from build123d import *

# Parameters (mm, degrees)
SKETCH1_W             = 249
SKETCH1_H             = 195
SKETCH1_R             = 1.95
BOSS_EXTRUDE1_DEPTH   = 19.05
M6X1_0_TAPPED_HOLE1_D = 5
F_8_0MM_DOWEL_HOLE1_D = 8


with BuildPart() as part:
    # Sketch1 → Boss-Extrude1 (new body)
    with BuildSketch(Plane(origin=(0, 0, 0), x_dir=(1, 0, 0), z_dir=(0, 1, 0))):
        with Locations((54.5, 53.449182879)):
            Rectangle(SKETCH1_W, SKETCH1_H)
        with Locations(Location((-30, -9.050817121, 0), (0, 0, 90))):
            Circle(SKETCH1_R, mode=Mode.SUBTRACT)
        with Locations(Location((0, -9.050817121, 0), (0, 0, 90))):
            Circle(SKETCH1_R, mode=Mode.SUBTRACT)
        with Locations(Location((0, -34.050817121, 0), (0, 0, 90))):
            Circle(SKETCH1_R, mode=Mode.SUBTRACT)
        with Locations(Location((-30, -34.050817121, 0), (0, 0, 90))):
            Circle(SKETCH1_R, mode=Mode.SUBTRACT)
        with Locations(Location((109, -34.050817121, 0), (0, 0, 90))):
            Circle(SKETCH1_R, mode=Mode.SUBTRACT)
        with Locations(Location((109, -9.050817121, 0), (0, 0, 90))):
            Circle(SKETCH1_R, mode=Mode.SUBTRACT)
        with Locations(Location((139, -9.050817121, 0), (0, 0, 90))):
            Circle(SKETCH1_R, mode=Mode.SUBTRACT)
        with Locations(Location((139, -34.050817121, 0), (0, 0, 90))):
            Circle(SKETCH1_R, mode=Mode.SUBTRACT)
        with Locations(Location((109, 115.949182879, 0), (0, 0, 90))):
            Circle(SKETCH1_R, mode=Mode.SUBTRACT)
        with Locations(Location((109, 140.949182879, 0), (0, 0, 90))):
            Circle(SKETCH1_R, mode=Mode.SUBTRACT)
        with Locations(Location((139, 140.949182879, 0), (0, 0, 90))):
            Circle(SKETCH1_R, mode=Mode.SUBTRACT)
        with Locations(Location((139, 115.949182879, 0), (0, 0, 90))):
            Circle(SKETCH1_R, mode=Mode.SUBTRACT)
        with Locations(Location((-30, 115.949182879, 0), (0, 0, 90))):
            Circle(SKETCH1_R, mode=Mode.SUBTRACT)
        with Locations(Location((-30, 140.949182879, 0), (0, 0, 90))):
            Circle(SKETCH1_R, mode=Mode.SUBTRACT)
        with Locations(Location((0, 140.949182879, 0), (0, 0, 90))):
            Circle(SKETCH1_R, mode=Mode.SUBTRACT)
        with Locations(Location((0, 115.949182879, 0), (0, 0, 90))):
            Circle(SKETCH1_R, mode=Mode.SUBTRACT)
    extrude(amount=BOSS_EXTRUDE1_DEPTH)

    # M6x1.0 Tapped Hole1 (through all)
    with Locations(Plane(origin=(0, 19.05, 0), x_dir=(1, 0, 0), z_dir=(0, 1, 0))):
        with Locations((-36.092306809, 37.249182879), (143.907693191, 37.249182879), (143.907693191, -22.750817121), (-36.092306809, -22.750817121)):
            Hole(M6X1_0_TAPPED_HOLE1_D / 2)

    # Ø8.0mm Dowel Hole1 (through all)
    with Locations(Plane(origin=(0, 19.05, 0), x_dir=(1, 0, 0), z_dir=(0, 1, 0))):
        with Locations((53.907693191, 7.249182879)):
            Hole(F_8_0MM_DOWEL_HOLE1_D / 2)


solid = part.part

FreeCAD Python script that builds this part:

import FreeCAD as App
import Part
import Sketcher

doc = App.newDocument("Part")
body = doc.addObject("PartDesign::Body", "Body")

# Sketch on XZ plane
sketch1 = doc.addObject("Sketcher::SketchObject", "Sketch")
body.addObject(sketch1)
sketch1.AttachmentSupport = (doc.XZ_Plane, [""])
sketch1.MapMode = "FlatFace"
sketch1.addGeometry(Part.LineSegment(App.Vector(-70, -150.949183, 0), App.Vector(-70, 44.050817, 0)), False)
sketch1.addGeometry(Part.LineSegment(App.Vector(-70, 44.050817, 0), App.Vector(179, 44.050817, 0)), False)
sketch1.addGeometry(Part.LineSegment(App.Vector(179, 44.050817, 0), App.Vector(179, -150.949183, 0)), False)
sketch1.addGeometry(Part.LineSegment(App.Vector(179, -150.949183, 0), App.Vector(-70, -150.949183, 0)), False)
sketch1.addGeometry(Part.Circle(App.Vector(-30, 34.050817, 0), App.Vector(0, 0, 1), 1.95), False)
sketch1.addGeometry(Part.Circle(App.Vector(0, 34.050817, 0), App.Vector(0, 0, 1), 1.95), False)
sketch1.addGeometry(Part.Circle(App.Vector(-30, 9.050817, 0), App.Vector(0, 0, 1), 1.95), False)
sketch1.addGeometry(Part.Circle(App.Vector(0, 9.050817, 0), App.Vector(0, 0, 1), 1.95), False)
sketch1.addGeometry(Part.Circle(App.Vector(109, 34.050817, 0), App.Vector(0, 0, 1), 1.95), False)
sketch1.addGeometry(Part.Circle(App.Vector(139, 34.050817, 0), App.Vector(0, 0, 1), 1.95), False)
sketch1.addGeometry(Part.Circle(App.Vector(109, 9.050817, 0), App.Vector(0, 0, 1), 1.95), False)
sketch1.addGeometry(Part.Circle(App.Vector(139, 9.050817, 0), App.Vector(0, 0, 1), 1.95), False)
sketch1.addGeometry(Part.Circle(App.Vector(-30, -115.949183, 0), App.Vector(0, 0, 1), 1.95), False)
sketch1.addGeometry(Part.Circle(App.Vector(0, -115.949183, 0), App.Vector(0, 0, 1), 1.95), False)
sketch1.addGeometry(Part.Circle(App.Vector(-30, -140.949183, 0), App.Vector(0, 0, 1), 1.95), False)
sketch1.addGeometry(Part.Circle(App.Vector(0, -140.949183, 0), App.Vector(0, 0, 1), 1.95), False)
sketch1.addGeometry(Part.Circle(App.Vector(109, -115.949183, 0), App.Vector(0, 0, 1), 1.95), False)
sketch1.addGeometry(Part.Circle(App.Vector(139, -115.949183, 0), App.Vector(0, 0, 1), 1.95), False)
sketch1.addGeometry(Part.Circle(App.Vector(109, -140.949183, 0), App.Vector(0, 0, 1), 1.95), False)
sketch1.addGeometry(Part.Circle(App.Vector(139, -140.949183, 0), App.Vector(0, 0, 1), 1.95), False)
sketch1.addConstraint(Sketcher.Constraint("Coincident", 0, 2, 1, 1))
sketch1.addConstraint(Sketcher.Constraint("Coincident", 1, 2, 2, 1))
sketch1.addConstraint(Sketcher.Constraint("Coincident", 2, 2, 3, 1))
sketch1.addConstraint(Sketcher.Constraint("Coincident", 3, 2, 0, 1))
sketch1.addConstraint(Sketcher.Constraint("Vertical", 0))
sketch1.addConstraint(Sketcher.Constraint("Horizontal", 1))
sketch1.addConstraint(Sketcher.Constraint("Vertical", 2))
sketch1.addConstraint(Sketcher.Constraint("Horizontal", 3))
sketch1.addConstraint(Sketcher.Constraint("Equal", 4, 5))
sketch1.addConstraint(Sketcher.Constraint("Equal", 5, 6))
sketch1.addConstraint(Sketcher.Constraint("Equal", 6, 7))
sketch1.addConstraint(Sketcher.Constraint("Equal", 7, 8))
sketch1.addConstraint(Sketcher.Constraint("Equal", 8, 9))
sketch1.addConstraint(Sketcher.Constraint("Equal", 9, 10))
sketch1.addConstraint(Sketcher.Constraint("Equal", 10, 11))
sketch1.addConstraint(Sketcher.Constraint("Equal", 11, 12))
sketch1.addConstraint(Sketcher.Constraint("Equal", 12, 13))
sketch1.addConstraint(Sketcher.Constraint("Equal", 13, 14))
sketch1.addConstraint(Sketcher.Constraint("Equal", 14, 15))
sketch1.addConstraint(Sketcher.Constraint("Equal", 15, 16))
sketch1.addConstraint(Sketcher.Constraint("Equal", 16, 17))
sketch1.addConstraint(Sketcher.Constraint("Equal", 17, 18))
sketch1.addConstraint(Sketcher.Constraint("Equal", 18, 19))
sketch1.addConstraint(Sketcher.Constraint("PointOnObject", 5, 3, -2))
sketch1.addConstraint(Sketcher.Constraint("PointOnObject", 7, 3, -2))
sketch1.addConstraint(Sketcher.Constraint("PointOnObject", 13, 3, -2))
sketch1.addConstraint(Sketcher.Constraint("PointOnObject", 15, 3, -2))
sketch1.addConstraint(Sketcher.Constraint("Horizontal", 4, 3, 5, 3))
sketch1.addConstraint(Sketcher.Constraint("Horizontal", 6, 3, 7, 3))
sketch1.addConstraint(Sketcher.Constraint("Horizontal", 5, 3, 8, 3))
sketch1.addConstraint(Sketcher.Constraint("Horizontal", 8, 3, 9, 3))
sketch1.addConstraint(Sketcher.Constraint("Horizontal", 7, 3, 10, 3))
sketch1.addConstraint(Sketcher.Constraint("Horizontal", 10, 3, 11, 3))
sketch1.addConstraint(Sketcher.Constraint("Horizontal", 12, 3, 13, 3))
sketch1.addConstraint(Sketcher.Constraint("Horizontal", 14, 3, 15, 3))
sketch1.addConstraint(Sketcher.Constraint("Horizontal", 13, 3, 16, 3))
sketch1.addConstraint(Sketcher.Constraint("Horizontal", 16, 3, 17, 3))
sketch1.addConstraint(Sketcher.Constraint("Horizontal", 15, 3, 18, 3))
sketch1.addConstraint(Sketcher.Constraint("Horizontal", 18, 3, 19, 3))
sketch1.addConstraint(Sketcher.Constraint("Vertical", 4, 3, 6, 3))
sketch1.addConstraint(Sketcher.Constraint("Vertical", 8, 3, 10, 3))
sketch1.addConstraint(Sketcher.Constraint("Vertical", 9, 3, 11, 3))
sketch1.addConstraint(Sketcher.Constraint("Vertical", 6, 3, 12, 3))
sketch1.addConstraint(Sketcher.Constraint("Vertical", 12, 3, 14, 3))
sketch1.addConstraint(Sketcher.Constraint("Vertical", 10, 3, 16, 3))
sketch1.addConstraint(Sketcher.Constraint("Vertical", 11, 3, 17, 3))
sketch1.addConstraint(Sketcher.Constraint("Vertical", 16, 3, 18, 3))
sketch1.addConstraint(Sketcher.Constraint("Vertical", 17, 3, 19, 3))
sketch1.addConstraint(Sketcher.Constraint("Diameter", 4, 3.9))
sketch1.addConstraint(Sketcher.Constraint("DistanceX", 1, 1, 1, 2, 249.0))
sketch1.addConstraint(Sketcher.Constraint("DistanceY", 0, 1, 0, 2, 195.0))
sketch1.addConstraint(Sketcher.Constraint("DistanceX", 4, 3, -1, 1, 30.0))
sketch1.addConstraint(Sketcher.Constraint("DistanceX", -1, 1, 8, 3, 109.0))
sketch1.addConstraint(Sketcher.Constraint("DistanceX", -1, 1, 9, 3, 139.0))
sketch1.addConstraint(Sketcher.Constraint("DistanceX", 0, 2, -1, 1, 70.0))
sketch1.addConstraint(Sketcher.Constraint("DistanceY", 6, 3, 4, 3, 25.0))
sketch1.addConstraint(Sketcher.Constraint("DistanceY", 12, 3, 6, 3, 125.0))
sketch1.addConstraint(Sketcher.Constraint("DistanceY", 14, 3, 12, 3, 25.0))
sketch1.addConstraint(Sketcher.Constraint("DistanceY", 4, 3, 0, 2, 10.0))
sketch1.addConstraint(Sketcher.Constraint("DistanceY", -1, 1, 4, 3, 34.050817))
pad1 = doc.addObject("PartDesign::Pad", "Pad")
body.addObject(pad1)
pad1.Profile = sketch1
pad1.Length = 19.05
pad1.Reversed = True

# Sketch on XZ plane
sketch2 = doc.addObject("Sketcher::SketchObject", "Sketch001")
body.addObject(sketch2)
sketch2.AttachmentSupport = (doc.XZ_Plane, [""])
sketch2.MapMode = "FlatFace"
sketch2.AttachmentOffset = App.Placement(App.Vector(0, 0, -19.05), App.Rotation())
sketch2.addGeometry(Part.Circle(App.Vector(-36.092307, -37.249183, 0), App.Vector(0, 0, 1), 2.5), False)
sketch2.addGeometry(Part.Circle(App.Vector(143.907693, -37.249183, 0), App.Vector(0, 0, 1), 2.5), False)
sketch2.addGeometry(Part.Circle(App.Vector(143.907693, 22.750817, 0), App.Vector(0, 0, 1), 2.5), False)
sketch2.addGeometry(Part.Circle(App.Vector(-36.092307, 22.750817, 0), App.Vector(0, 0, 1), 2.5), False)
sketch2.addConstraint(Sketcher.Constraint("Equal", 0, 1))
sketch2.addConstraint(Sketcher.Constraint("Equal", 1, 2))
sketch2.addConstraint(Sketcher.Constraint("Equal", 2, 3))
sketch2.addConstraint(Sketcher.Constraint("Horizontal", 0, 3, 1, 3))
sketch2.addConstraint(Sketcher.Constraint("Horizontal", 2, 3, 3, 3))
sketch2.addConstraint(Sketcher.Constraint("Vertical", 1, 3, 2, 3))
sketch2.addConstraint(Sketcher.Constraint("Vertical", 0, 3, 3, 3))
sketch2.addConstraint(Sketcher.Constraint("Diameter", 0, 5.0))
sketch2.addConstraint(Sketcher.Constraint("DistanceX", 0, 3, 1, 3, 180.0))
sketch2.addConstraint(Sketcher.Constraint("DistanceY", 1, 3, 2, 3, 60.0))
sketch2.addConstraint(Sketcher.Constraint("DistanceX", 0, 3, -1, 1, 36.092307))
sketch2.addConstraint(Sketcher.Constraint("DistanceY", 0, 3, -1, 1, 37.249183))
doc.recompute()
hole = doc.addObject("PartDesign::Hole", "Hole")
body.addObject(hole)
hole.Profile = sketch2
hole.ThreadType = "None"
hole.Diameter = 5
hole.DepthType = "ThroughAll"
hole.Reversed = True

# Sketch on XZ plane
sketch3 = doc.addObject("Sketcher::SketchObject", "Sketch002")
body.addObject(sketch3)
sketch3.AttachmentSupport = (doc.XZ_Plane, [""])
sketch3.MapMode = "FlatFace"
sketch3.AttachmentOffset = App.Placement(App.Vector(0, 0, -19.05), App.Rotation())
sketch3.addGeometry(Part.Circle(App.Vector(53.907693, -7.249183, 0), App.Vector(0, 0, 1), 4), False)
sketch3.addConstraint(Sketcher.Constraint("Diameter", 0, 8.0))
sketch3.addConstraint(Sketcher.Constraint("DistanceX", -1, 1, 0, 3, 53.907693))
sketch3.addConstraint(Sketcher.Constraint("DistanceY", 0, 3, -1, 1, 7.249183))
doc.recompute()
hole2 = doc.addObject("PartDesign::Hole", "Hole001")
body.addObject(hole2)
hole2.Profile = sketch3
hole2.ThreadType = "None"
hole2.Diameter = 8
hole2.DepthType = "ThroughAll"
hole2.Reversed = True

doc.recompute()
